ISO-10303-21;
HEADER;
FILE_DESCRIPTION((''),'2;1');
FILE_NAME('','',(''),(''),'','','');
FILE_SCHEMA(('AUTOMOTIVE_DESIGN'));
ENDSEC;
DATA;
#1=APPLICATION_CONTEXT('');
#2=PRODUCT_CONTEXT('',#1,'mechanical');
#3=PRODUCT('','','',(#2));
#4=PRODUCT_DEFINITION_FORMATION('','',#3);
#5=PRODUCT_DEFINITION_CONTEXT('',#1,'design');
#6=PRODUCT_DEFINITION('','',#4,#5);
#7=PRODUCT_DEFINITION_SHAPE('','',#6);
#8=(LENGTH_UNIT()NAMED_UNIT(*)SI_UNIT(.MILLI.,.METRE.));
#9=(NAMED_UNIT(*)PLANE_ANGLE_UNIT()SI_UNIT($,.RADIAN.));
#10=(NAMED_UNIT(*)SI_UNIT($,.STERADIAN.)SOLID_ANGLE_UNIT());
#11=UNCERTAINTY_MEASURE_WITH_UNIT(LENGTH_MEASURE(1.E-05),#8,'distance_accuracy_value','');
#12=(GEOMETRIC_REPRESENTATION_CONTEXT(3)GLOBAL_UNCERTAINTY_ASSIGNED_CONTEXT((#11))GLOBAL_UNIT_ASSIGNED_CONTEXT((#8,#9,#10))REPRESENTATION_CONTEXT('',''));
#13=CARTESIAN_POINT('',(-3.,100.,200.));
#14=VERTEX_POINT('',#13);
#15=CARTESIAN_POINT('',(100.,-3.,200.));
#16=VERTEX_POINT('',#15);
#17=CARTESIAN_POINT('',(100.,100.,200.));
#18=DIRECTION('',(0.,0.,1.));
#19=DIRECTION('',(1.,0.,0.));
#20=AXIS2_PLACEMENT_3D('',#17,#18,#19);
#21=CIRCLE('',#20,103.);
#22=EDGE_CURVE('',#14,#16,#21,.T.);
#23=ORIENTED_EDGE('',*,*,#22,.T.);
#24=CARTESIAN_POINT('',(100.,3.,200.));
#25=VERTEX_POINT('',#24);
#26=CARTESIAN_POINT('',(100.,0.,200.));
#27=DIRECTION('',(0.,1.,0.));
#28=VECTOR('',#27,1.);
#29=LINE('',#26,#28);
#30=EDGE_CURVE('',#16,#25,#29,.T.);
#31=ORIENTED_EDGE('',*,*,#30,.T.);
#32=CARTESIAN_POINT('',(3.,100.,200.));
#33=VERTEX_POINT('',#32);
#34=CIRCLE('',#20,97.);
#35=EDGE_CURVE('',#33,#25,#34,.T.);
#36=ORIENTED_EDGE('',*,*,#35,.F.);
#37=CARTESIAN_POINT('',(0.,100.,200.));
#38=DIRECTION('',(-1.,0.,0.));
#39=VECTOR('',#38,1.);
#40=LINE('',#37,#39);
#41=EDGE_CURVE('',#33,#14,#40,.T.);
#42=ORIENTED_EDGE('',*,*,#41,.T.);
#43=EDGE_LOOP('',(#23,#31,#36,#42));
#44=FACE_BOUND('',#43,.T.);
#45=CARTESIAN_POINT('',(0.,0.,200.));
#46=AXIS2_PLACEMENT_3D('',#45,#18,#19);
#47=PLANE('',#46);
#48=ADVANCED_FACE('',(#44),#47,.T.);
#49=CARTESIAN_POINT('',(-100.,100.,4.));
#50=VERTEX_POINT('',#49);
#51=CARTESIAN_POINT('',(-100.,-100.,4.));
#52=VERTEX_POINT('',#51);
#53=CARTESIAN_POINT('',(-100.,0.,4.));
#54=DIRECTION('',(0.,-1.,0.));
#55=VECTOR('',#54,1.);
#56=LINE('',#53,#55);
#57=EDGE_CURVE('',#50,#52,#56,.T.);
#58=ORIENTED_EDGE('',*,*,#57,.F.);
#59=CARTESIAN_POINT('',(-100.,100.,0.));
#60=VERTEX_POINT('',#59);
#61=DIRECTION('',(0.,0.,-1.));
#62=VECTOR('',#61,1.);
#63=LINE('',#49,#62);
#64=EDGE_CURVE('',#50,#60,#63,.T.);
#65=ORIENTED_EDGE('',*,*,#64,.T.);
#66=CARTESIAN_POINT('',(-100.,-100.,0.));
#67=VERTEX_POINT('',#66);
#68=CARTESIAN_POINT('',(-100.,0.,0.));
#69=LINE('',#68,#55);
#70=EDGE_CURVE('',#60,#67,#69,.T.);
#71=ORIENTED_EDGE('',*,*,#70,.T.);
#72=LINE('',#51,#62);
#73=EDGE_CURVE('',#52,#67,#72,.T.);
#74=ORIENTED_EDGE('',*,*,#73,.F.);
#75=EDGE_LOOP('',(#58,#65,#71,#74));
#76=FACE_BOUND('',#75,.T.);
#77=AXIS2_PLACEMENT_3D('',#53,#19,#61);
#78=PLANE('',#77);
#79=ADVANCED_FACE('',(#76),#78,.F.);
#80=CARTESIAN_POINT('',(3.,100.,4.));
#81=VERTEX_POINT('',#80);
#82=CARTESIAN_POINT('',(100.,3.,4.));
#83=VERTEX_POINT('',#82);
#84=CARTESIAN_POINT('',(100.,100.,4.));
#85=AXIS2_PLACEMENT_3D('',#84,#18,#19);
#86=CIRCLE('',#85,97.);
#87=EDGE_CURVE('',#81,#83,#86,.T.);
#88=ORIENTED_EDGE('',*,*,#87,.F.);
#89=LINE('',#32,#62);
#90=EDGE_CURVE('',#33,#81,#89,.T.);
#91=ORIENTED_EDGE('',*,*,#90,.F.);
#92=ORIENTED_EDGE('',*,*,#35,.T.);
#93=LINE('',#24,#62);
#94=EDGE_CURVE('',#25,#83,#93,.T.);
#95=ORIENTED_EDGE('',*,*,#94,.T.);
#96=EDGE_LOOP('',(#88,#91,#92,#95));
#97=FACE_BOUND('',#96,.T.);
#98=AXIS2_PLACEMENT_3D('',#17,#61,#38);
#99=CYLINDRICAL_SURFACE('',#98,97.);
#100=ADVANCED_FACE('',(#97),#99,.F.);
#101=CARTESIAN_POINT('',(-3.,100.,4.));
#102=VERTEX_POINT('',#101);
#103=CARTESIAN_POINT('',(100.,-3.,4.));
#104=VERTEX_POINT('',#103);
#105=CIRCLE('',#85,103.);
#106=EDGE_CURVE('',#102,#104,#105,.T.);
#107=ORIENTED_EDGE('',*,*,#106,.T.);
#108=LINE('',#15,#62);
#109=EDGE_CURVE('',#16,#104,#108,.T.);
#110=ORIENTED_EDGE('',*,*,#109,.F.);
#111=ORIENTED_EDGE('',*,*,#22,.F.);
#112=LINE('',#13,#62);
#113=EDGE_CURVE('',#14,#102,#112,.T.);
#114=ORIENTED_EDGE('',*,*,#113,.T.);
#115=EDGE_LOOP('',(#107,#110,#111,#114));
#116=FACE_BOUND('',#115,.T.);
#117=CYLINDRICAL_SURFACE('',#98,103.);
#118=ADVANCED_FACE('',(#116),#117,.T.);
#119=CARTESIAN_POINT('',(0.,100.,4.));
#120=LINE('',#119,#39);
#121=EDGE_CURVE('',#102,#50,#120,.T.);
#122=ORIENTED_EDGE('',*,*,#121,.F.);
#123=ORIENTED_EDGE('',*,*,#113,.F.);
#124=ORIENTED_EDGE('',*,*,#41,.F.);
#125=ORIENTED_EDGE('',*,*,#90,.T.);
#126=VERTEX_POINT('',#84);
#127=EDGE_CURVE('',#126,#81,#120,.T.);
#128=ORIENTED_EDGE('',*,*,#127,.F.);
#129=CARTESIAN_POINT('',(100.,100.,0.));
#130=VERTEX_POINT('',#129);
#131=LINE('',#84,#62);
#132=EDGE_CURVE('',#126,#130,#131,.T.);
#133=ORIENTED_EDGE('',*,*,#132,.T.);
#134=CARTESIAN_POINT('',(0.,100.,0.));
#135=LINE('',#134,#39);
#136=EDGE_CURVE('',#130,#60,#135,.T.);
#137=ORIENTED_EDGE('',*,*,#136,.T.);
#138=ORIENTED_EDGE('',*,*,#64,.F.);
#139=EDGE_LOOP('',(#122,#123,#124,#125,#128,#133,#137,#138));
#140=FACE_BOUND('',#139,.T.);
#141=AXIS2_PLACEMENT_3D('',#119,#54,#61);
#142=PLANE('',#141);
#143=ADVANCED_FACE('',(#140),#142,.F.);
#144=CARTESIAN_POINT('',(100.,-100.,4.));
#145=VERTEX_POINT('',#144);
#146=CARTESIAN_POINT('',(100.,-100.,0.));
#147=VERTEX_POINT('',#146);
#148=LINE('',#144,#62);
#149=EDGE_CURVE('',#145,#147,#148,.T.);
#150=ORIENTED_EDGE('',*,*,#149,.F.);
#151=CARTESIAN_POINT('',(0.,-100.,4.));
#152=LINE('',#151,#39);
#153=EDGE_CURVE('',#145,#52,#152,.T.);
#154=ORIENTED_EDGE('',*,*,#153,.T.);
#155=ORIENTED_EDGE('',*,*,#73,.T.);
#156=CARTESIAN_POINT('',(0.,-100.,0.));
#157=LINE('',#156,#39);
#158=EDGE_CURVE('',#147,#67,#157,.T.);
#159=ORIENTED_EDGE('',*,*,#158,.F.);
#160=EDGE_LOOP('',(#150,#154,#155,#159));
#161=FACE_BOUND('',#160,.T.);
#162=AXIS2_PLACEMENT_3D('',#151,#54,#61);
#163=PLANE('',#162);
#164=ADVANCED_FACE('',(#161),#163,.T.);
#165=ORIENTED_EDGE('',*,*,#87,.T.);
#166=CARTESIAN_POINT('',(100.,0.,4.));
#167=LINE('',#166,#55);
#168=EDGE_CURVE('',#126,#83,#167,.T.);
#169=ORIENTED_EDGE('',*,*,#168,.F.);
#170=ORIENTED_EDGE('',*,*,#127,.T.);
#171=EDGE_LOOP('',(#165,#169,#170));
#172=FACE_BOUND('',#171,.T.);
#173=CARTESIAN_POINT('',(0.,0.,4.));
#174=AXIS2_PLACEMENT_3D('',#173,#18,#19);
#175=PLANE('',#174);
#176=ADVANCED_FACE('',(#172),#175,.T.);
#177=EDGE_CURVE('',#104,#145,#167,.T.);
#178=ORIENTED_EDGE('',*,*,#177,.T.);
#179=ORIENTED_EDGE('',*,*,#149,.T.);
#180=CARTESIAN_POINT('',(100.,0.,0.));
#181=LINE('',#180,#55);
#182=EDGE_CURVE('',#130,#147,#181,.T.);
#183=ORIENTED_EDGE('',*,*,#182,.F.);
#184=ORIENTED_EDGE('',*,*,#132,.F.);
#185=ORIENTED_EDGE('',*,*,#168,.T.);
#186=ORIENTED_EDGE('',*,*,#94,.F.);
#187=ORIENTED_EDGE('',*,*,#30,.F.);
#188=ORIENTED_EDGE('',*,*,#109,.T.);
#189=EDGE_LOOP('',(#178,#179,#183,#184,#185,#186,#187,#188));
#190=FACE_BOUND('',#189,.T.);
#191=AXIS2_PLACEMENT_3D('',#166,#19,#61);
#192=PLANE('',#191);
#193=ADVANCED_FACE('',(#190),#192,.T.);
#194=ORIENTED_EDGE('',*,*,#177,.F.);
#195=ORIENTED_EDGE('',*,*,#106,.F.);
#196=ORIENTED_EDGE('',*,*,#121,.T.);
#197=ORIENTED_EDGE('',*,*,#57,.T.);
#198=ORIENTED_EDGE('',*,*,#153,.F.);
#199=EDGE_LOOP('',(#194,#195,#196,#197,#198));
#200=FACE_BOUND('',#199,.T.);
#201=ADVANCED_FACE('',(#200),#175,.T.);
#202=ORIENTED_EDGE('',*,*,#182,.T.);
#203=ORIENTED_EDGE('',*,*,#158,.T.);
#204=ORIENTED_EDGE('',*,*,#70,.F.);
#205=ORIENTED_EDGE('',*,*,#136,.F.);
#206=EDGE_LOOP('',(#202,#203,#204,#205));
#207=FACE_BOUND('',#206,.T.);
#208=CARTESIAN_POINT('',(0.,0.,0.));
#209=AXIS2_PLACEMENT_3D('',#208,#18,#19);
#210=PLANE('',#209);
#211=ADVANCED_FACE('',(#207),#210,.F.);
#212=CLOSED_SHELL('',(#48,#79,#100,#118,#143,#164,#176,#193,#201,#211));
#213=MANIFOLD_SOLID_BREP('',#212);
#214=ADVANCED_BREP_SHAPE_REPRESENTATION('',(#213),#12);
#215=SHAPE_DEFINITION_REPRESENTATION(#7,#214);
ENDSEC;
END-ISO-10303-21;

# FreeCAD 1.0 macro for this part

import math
import FreeCAD as App
import Part
import Sketcher

V = App.Vector
Q = App.Units.Quantity

doc = App.newDocument("Part")
params = doc.addObject("Spreadsheet::Sheet", "Params")
for row, (alias, value) in enumerate([
    ("sketch1_width", "200 mm"),
    ("pad1_length", "4 mm"),
    ("sketch2_radius", "103 mm"),
    ("sketch2_radius2", "97 mm"),
    ("pad2_length", "196 mm"),
], start=1):
    params.set(f"A{row}", alias)
    params.set(f"B{row}", "=" + value)
    params.setAlias(f"B{row}", alias)

body = doc.addObject("PartDesign::Body", "Body")

# Sketch on XY plane
sketch1 = doc.addObject("Sketcher::SketchObject", "Sketch")
body.addObject(sketch1)
sketch1.AttachmentSupport = (doc.XY_Plane, [""])
sketch1.MapMode = "FlatFace"
sketch1.addGeometry([
    Part.LineSegment(V(-100, 100, 0), V(-100, -100, 0)),
    Part.LineSegment(V(-100, -100, 0), V(100, -100, 0)),
    Part.LineSegment(V(100, -100, 0), V(100, 100, 0)),
    Part.LineSegment(V(100, 100, 0), V(-100, 100, 0)),
], False)
sketch1.addConstraint([
    Sketcher.Constraint("Coincident", 0, 2, 1, 1),
    Sketcher.Constraint("Coincident", 1, 2, 2, 1),
    Sketcher.Constraint("Coincident", 2, 2, 3, 1),
    Sketcher.Constraint("Coincident", 3, 2, 0, 1),
    Sketcher.Constraint("Vertical", 0),
    Sketcher.Constraint("Horizontal", 1),
    Sketcher.Constraint("Vertical", 2),
    Sketcher.Constraint("Horizontal", 3),
    Sketcher.Constraint("Symmetric", 0, 2, 2, 2, -1, 1),
    Sketcher.Constraint("Equal", 3, 0),
    Sketcher.Constraint("DistanceX", 1, 1, 1, 2, Q("200 mm")),
])
sketch1.setExpression("Constraints[10]", "Params.sketch1_width")
pad1 = doc.addObject("PartDesign::Pad", "Pad")
body.addObject(pad1)
pad1.Profile = sketch1
pad1.setExpression("Length", "Params.pad1_length")

# Sketch on XY plane
sketch2 = doc.addObject("Sketcher::SketchObject", "Sketch001")
body.addObject(sketch2)
sketch2.AttachmentSupport = (doc.XY_Plane, [""])
sketch2.MapMode = "FlatFace"
sketch2.AttachmentOffset = App.Placement(V(0, 0, 4), App.Rotation())
sketch2.addGeometry([
    Part.ArcOfCircle(Part.Circle(V(100, 100, 0), V(0, 0, 1), 103), math.radians(-166), math.radians(-104)),  # 0
    Part.ArcOfCircle(Part.Circle(V(100, 100, 0), V(0, 0, 1), 103), math.radians(-103.86), math.radians(-90)),  # 1
    Part.LineSegment(V(100, -3, 0), V(100, 3, 0)),  # 2
    Part.ArcOfCircle(Part.Circle(V(100, 100, 0), V(0, 0, 1), 97), math.radians(180), math.radians(270)),  # 3
    Part.LineSegment(V(3, 100, 0), V(-3, 100, 0)),  # 4
    Part.ArcOfCircle(Part.Circle(V(100, 100, 0), V(0, 0, 1), 103), math.radians(180), math.radians(193.86)),  # 5
], False)
sketch2.addConstraint([
    Sketcher.Constraint("Tangent", 0, 2, 1, 1),
    Sketcher.Constraint("Coincident", 1, 2, 2, 1),
    Sketcher.Constraint("Coincident", 2, 2, 3, 2),
    Sketcher.Constraint("Coincident", 3, 1, 4, 1),
    Sketcher.Constraint("Coincident", 4, 2, 5, 1),
    Sketcher.Constraint("Tangent", 5, 2, 0, 1),
    Sketcher.Constraint("Vertical", 2),
    Sketcher.Constraint("Horizontal", 4),
    Sketcher.Constraint("Coincident", 3, 3, 0, 3),
    Sketcher.Constraint("Equal", 0, 1),
    Sketcher.Constraint("Equal", 1, 5),
    Sketcher.Constraint("PointOnObject", 0, 2, -1),
    Sketcher.Constraint("PointOnObject", 5, 2, -2),
    Sketcher.Constraint("Horizontal", 5, 3, 3, 1),
    Sketcher.Constraint("Vertical", 5, 3, 1, 2),
    Sketcher.Constraint("Radius", 0, Q("103 mm")),
    Sketcher.Constraint("Radius", 3, Q("97 mm")),
    Sketcher.Constraint("DistanceX", -1, 1, 0, 3, Q("100 mm")),
    Sketcher.Constraint("DistanceY", -1, 1, 0, 3, Q("100 mm")),
])
sketch2.setExpression("Constraints[15]", "Params.sketch2_radius")
sketch2.setExpression("Constraints[16]", "Params.sketch2_radius2")
pad2 = doc.addObject("PartDesign::Pad", "Pad001")
body.addObject(pad2)
pad2.Profile = sketch2
pad2.setExpression("Length", "Params.pad2_length")

doc.recompute()
